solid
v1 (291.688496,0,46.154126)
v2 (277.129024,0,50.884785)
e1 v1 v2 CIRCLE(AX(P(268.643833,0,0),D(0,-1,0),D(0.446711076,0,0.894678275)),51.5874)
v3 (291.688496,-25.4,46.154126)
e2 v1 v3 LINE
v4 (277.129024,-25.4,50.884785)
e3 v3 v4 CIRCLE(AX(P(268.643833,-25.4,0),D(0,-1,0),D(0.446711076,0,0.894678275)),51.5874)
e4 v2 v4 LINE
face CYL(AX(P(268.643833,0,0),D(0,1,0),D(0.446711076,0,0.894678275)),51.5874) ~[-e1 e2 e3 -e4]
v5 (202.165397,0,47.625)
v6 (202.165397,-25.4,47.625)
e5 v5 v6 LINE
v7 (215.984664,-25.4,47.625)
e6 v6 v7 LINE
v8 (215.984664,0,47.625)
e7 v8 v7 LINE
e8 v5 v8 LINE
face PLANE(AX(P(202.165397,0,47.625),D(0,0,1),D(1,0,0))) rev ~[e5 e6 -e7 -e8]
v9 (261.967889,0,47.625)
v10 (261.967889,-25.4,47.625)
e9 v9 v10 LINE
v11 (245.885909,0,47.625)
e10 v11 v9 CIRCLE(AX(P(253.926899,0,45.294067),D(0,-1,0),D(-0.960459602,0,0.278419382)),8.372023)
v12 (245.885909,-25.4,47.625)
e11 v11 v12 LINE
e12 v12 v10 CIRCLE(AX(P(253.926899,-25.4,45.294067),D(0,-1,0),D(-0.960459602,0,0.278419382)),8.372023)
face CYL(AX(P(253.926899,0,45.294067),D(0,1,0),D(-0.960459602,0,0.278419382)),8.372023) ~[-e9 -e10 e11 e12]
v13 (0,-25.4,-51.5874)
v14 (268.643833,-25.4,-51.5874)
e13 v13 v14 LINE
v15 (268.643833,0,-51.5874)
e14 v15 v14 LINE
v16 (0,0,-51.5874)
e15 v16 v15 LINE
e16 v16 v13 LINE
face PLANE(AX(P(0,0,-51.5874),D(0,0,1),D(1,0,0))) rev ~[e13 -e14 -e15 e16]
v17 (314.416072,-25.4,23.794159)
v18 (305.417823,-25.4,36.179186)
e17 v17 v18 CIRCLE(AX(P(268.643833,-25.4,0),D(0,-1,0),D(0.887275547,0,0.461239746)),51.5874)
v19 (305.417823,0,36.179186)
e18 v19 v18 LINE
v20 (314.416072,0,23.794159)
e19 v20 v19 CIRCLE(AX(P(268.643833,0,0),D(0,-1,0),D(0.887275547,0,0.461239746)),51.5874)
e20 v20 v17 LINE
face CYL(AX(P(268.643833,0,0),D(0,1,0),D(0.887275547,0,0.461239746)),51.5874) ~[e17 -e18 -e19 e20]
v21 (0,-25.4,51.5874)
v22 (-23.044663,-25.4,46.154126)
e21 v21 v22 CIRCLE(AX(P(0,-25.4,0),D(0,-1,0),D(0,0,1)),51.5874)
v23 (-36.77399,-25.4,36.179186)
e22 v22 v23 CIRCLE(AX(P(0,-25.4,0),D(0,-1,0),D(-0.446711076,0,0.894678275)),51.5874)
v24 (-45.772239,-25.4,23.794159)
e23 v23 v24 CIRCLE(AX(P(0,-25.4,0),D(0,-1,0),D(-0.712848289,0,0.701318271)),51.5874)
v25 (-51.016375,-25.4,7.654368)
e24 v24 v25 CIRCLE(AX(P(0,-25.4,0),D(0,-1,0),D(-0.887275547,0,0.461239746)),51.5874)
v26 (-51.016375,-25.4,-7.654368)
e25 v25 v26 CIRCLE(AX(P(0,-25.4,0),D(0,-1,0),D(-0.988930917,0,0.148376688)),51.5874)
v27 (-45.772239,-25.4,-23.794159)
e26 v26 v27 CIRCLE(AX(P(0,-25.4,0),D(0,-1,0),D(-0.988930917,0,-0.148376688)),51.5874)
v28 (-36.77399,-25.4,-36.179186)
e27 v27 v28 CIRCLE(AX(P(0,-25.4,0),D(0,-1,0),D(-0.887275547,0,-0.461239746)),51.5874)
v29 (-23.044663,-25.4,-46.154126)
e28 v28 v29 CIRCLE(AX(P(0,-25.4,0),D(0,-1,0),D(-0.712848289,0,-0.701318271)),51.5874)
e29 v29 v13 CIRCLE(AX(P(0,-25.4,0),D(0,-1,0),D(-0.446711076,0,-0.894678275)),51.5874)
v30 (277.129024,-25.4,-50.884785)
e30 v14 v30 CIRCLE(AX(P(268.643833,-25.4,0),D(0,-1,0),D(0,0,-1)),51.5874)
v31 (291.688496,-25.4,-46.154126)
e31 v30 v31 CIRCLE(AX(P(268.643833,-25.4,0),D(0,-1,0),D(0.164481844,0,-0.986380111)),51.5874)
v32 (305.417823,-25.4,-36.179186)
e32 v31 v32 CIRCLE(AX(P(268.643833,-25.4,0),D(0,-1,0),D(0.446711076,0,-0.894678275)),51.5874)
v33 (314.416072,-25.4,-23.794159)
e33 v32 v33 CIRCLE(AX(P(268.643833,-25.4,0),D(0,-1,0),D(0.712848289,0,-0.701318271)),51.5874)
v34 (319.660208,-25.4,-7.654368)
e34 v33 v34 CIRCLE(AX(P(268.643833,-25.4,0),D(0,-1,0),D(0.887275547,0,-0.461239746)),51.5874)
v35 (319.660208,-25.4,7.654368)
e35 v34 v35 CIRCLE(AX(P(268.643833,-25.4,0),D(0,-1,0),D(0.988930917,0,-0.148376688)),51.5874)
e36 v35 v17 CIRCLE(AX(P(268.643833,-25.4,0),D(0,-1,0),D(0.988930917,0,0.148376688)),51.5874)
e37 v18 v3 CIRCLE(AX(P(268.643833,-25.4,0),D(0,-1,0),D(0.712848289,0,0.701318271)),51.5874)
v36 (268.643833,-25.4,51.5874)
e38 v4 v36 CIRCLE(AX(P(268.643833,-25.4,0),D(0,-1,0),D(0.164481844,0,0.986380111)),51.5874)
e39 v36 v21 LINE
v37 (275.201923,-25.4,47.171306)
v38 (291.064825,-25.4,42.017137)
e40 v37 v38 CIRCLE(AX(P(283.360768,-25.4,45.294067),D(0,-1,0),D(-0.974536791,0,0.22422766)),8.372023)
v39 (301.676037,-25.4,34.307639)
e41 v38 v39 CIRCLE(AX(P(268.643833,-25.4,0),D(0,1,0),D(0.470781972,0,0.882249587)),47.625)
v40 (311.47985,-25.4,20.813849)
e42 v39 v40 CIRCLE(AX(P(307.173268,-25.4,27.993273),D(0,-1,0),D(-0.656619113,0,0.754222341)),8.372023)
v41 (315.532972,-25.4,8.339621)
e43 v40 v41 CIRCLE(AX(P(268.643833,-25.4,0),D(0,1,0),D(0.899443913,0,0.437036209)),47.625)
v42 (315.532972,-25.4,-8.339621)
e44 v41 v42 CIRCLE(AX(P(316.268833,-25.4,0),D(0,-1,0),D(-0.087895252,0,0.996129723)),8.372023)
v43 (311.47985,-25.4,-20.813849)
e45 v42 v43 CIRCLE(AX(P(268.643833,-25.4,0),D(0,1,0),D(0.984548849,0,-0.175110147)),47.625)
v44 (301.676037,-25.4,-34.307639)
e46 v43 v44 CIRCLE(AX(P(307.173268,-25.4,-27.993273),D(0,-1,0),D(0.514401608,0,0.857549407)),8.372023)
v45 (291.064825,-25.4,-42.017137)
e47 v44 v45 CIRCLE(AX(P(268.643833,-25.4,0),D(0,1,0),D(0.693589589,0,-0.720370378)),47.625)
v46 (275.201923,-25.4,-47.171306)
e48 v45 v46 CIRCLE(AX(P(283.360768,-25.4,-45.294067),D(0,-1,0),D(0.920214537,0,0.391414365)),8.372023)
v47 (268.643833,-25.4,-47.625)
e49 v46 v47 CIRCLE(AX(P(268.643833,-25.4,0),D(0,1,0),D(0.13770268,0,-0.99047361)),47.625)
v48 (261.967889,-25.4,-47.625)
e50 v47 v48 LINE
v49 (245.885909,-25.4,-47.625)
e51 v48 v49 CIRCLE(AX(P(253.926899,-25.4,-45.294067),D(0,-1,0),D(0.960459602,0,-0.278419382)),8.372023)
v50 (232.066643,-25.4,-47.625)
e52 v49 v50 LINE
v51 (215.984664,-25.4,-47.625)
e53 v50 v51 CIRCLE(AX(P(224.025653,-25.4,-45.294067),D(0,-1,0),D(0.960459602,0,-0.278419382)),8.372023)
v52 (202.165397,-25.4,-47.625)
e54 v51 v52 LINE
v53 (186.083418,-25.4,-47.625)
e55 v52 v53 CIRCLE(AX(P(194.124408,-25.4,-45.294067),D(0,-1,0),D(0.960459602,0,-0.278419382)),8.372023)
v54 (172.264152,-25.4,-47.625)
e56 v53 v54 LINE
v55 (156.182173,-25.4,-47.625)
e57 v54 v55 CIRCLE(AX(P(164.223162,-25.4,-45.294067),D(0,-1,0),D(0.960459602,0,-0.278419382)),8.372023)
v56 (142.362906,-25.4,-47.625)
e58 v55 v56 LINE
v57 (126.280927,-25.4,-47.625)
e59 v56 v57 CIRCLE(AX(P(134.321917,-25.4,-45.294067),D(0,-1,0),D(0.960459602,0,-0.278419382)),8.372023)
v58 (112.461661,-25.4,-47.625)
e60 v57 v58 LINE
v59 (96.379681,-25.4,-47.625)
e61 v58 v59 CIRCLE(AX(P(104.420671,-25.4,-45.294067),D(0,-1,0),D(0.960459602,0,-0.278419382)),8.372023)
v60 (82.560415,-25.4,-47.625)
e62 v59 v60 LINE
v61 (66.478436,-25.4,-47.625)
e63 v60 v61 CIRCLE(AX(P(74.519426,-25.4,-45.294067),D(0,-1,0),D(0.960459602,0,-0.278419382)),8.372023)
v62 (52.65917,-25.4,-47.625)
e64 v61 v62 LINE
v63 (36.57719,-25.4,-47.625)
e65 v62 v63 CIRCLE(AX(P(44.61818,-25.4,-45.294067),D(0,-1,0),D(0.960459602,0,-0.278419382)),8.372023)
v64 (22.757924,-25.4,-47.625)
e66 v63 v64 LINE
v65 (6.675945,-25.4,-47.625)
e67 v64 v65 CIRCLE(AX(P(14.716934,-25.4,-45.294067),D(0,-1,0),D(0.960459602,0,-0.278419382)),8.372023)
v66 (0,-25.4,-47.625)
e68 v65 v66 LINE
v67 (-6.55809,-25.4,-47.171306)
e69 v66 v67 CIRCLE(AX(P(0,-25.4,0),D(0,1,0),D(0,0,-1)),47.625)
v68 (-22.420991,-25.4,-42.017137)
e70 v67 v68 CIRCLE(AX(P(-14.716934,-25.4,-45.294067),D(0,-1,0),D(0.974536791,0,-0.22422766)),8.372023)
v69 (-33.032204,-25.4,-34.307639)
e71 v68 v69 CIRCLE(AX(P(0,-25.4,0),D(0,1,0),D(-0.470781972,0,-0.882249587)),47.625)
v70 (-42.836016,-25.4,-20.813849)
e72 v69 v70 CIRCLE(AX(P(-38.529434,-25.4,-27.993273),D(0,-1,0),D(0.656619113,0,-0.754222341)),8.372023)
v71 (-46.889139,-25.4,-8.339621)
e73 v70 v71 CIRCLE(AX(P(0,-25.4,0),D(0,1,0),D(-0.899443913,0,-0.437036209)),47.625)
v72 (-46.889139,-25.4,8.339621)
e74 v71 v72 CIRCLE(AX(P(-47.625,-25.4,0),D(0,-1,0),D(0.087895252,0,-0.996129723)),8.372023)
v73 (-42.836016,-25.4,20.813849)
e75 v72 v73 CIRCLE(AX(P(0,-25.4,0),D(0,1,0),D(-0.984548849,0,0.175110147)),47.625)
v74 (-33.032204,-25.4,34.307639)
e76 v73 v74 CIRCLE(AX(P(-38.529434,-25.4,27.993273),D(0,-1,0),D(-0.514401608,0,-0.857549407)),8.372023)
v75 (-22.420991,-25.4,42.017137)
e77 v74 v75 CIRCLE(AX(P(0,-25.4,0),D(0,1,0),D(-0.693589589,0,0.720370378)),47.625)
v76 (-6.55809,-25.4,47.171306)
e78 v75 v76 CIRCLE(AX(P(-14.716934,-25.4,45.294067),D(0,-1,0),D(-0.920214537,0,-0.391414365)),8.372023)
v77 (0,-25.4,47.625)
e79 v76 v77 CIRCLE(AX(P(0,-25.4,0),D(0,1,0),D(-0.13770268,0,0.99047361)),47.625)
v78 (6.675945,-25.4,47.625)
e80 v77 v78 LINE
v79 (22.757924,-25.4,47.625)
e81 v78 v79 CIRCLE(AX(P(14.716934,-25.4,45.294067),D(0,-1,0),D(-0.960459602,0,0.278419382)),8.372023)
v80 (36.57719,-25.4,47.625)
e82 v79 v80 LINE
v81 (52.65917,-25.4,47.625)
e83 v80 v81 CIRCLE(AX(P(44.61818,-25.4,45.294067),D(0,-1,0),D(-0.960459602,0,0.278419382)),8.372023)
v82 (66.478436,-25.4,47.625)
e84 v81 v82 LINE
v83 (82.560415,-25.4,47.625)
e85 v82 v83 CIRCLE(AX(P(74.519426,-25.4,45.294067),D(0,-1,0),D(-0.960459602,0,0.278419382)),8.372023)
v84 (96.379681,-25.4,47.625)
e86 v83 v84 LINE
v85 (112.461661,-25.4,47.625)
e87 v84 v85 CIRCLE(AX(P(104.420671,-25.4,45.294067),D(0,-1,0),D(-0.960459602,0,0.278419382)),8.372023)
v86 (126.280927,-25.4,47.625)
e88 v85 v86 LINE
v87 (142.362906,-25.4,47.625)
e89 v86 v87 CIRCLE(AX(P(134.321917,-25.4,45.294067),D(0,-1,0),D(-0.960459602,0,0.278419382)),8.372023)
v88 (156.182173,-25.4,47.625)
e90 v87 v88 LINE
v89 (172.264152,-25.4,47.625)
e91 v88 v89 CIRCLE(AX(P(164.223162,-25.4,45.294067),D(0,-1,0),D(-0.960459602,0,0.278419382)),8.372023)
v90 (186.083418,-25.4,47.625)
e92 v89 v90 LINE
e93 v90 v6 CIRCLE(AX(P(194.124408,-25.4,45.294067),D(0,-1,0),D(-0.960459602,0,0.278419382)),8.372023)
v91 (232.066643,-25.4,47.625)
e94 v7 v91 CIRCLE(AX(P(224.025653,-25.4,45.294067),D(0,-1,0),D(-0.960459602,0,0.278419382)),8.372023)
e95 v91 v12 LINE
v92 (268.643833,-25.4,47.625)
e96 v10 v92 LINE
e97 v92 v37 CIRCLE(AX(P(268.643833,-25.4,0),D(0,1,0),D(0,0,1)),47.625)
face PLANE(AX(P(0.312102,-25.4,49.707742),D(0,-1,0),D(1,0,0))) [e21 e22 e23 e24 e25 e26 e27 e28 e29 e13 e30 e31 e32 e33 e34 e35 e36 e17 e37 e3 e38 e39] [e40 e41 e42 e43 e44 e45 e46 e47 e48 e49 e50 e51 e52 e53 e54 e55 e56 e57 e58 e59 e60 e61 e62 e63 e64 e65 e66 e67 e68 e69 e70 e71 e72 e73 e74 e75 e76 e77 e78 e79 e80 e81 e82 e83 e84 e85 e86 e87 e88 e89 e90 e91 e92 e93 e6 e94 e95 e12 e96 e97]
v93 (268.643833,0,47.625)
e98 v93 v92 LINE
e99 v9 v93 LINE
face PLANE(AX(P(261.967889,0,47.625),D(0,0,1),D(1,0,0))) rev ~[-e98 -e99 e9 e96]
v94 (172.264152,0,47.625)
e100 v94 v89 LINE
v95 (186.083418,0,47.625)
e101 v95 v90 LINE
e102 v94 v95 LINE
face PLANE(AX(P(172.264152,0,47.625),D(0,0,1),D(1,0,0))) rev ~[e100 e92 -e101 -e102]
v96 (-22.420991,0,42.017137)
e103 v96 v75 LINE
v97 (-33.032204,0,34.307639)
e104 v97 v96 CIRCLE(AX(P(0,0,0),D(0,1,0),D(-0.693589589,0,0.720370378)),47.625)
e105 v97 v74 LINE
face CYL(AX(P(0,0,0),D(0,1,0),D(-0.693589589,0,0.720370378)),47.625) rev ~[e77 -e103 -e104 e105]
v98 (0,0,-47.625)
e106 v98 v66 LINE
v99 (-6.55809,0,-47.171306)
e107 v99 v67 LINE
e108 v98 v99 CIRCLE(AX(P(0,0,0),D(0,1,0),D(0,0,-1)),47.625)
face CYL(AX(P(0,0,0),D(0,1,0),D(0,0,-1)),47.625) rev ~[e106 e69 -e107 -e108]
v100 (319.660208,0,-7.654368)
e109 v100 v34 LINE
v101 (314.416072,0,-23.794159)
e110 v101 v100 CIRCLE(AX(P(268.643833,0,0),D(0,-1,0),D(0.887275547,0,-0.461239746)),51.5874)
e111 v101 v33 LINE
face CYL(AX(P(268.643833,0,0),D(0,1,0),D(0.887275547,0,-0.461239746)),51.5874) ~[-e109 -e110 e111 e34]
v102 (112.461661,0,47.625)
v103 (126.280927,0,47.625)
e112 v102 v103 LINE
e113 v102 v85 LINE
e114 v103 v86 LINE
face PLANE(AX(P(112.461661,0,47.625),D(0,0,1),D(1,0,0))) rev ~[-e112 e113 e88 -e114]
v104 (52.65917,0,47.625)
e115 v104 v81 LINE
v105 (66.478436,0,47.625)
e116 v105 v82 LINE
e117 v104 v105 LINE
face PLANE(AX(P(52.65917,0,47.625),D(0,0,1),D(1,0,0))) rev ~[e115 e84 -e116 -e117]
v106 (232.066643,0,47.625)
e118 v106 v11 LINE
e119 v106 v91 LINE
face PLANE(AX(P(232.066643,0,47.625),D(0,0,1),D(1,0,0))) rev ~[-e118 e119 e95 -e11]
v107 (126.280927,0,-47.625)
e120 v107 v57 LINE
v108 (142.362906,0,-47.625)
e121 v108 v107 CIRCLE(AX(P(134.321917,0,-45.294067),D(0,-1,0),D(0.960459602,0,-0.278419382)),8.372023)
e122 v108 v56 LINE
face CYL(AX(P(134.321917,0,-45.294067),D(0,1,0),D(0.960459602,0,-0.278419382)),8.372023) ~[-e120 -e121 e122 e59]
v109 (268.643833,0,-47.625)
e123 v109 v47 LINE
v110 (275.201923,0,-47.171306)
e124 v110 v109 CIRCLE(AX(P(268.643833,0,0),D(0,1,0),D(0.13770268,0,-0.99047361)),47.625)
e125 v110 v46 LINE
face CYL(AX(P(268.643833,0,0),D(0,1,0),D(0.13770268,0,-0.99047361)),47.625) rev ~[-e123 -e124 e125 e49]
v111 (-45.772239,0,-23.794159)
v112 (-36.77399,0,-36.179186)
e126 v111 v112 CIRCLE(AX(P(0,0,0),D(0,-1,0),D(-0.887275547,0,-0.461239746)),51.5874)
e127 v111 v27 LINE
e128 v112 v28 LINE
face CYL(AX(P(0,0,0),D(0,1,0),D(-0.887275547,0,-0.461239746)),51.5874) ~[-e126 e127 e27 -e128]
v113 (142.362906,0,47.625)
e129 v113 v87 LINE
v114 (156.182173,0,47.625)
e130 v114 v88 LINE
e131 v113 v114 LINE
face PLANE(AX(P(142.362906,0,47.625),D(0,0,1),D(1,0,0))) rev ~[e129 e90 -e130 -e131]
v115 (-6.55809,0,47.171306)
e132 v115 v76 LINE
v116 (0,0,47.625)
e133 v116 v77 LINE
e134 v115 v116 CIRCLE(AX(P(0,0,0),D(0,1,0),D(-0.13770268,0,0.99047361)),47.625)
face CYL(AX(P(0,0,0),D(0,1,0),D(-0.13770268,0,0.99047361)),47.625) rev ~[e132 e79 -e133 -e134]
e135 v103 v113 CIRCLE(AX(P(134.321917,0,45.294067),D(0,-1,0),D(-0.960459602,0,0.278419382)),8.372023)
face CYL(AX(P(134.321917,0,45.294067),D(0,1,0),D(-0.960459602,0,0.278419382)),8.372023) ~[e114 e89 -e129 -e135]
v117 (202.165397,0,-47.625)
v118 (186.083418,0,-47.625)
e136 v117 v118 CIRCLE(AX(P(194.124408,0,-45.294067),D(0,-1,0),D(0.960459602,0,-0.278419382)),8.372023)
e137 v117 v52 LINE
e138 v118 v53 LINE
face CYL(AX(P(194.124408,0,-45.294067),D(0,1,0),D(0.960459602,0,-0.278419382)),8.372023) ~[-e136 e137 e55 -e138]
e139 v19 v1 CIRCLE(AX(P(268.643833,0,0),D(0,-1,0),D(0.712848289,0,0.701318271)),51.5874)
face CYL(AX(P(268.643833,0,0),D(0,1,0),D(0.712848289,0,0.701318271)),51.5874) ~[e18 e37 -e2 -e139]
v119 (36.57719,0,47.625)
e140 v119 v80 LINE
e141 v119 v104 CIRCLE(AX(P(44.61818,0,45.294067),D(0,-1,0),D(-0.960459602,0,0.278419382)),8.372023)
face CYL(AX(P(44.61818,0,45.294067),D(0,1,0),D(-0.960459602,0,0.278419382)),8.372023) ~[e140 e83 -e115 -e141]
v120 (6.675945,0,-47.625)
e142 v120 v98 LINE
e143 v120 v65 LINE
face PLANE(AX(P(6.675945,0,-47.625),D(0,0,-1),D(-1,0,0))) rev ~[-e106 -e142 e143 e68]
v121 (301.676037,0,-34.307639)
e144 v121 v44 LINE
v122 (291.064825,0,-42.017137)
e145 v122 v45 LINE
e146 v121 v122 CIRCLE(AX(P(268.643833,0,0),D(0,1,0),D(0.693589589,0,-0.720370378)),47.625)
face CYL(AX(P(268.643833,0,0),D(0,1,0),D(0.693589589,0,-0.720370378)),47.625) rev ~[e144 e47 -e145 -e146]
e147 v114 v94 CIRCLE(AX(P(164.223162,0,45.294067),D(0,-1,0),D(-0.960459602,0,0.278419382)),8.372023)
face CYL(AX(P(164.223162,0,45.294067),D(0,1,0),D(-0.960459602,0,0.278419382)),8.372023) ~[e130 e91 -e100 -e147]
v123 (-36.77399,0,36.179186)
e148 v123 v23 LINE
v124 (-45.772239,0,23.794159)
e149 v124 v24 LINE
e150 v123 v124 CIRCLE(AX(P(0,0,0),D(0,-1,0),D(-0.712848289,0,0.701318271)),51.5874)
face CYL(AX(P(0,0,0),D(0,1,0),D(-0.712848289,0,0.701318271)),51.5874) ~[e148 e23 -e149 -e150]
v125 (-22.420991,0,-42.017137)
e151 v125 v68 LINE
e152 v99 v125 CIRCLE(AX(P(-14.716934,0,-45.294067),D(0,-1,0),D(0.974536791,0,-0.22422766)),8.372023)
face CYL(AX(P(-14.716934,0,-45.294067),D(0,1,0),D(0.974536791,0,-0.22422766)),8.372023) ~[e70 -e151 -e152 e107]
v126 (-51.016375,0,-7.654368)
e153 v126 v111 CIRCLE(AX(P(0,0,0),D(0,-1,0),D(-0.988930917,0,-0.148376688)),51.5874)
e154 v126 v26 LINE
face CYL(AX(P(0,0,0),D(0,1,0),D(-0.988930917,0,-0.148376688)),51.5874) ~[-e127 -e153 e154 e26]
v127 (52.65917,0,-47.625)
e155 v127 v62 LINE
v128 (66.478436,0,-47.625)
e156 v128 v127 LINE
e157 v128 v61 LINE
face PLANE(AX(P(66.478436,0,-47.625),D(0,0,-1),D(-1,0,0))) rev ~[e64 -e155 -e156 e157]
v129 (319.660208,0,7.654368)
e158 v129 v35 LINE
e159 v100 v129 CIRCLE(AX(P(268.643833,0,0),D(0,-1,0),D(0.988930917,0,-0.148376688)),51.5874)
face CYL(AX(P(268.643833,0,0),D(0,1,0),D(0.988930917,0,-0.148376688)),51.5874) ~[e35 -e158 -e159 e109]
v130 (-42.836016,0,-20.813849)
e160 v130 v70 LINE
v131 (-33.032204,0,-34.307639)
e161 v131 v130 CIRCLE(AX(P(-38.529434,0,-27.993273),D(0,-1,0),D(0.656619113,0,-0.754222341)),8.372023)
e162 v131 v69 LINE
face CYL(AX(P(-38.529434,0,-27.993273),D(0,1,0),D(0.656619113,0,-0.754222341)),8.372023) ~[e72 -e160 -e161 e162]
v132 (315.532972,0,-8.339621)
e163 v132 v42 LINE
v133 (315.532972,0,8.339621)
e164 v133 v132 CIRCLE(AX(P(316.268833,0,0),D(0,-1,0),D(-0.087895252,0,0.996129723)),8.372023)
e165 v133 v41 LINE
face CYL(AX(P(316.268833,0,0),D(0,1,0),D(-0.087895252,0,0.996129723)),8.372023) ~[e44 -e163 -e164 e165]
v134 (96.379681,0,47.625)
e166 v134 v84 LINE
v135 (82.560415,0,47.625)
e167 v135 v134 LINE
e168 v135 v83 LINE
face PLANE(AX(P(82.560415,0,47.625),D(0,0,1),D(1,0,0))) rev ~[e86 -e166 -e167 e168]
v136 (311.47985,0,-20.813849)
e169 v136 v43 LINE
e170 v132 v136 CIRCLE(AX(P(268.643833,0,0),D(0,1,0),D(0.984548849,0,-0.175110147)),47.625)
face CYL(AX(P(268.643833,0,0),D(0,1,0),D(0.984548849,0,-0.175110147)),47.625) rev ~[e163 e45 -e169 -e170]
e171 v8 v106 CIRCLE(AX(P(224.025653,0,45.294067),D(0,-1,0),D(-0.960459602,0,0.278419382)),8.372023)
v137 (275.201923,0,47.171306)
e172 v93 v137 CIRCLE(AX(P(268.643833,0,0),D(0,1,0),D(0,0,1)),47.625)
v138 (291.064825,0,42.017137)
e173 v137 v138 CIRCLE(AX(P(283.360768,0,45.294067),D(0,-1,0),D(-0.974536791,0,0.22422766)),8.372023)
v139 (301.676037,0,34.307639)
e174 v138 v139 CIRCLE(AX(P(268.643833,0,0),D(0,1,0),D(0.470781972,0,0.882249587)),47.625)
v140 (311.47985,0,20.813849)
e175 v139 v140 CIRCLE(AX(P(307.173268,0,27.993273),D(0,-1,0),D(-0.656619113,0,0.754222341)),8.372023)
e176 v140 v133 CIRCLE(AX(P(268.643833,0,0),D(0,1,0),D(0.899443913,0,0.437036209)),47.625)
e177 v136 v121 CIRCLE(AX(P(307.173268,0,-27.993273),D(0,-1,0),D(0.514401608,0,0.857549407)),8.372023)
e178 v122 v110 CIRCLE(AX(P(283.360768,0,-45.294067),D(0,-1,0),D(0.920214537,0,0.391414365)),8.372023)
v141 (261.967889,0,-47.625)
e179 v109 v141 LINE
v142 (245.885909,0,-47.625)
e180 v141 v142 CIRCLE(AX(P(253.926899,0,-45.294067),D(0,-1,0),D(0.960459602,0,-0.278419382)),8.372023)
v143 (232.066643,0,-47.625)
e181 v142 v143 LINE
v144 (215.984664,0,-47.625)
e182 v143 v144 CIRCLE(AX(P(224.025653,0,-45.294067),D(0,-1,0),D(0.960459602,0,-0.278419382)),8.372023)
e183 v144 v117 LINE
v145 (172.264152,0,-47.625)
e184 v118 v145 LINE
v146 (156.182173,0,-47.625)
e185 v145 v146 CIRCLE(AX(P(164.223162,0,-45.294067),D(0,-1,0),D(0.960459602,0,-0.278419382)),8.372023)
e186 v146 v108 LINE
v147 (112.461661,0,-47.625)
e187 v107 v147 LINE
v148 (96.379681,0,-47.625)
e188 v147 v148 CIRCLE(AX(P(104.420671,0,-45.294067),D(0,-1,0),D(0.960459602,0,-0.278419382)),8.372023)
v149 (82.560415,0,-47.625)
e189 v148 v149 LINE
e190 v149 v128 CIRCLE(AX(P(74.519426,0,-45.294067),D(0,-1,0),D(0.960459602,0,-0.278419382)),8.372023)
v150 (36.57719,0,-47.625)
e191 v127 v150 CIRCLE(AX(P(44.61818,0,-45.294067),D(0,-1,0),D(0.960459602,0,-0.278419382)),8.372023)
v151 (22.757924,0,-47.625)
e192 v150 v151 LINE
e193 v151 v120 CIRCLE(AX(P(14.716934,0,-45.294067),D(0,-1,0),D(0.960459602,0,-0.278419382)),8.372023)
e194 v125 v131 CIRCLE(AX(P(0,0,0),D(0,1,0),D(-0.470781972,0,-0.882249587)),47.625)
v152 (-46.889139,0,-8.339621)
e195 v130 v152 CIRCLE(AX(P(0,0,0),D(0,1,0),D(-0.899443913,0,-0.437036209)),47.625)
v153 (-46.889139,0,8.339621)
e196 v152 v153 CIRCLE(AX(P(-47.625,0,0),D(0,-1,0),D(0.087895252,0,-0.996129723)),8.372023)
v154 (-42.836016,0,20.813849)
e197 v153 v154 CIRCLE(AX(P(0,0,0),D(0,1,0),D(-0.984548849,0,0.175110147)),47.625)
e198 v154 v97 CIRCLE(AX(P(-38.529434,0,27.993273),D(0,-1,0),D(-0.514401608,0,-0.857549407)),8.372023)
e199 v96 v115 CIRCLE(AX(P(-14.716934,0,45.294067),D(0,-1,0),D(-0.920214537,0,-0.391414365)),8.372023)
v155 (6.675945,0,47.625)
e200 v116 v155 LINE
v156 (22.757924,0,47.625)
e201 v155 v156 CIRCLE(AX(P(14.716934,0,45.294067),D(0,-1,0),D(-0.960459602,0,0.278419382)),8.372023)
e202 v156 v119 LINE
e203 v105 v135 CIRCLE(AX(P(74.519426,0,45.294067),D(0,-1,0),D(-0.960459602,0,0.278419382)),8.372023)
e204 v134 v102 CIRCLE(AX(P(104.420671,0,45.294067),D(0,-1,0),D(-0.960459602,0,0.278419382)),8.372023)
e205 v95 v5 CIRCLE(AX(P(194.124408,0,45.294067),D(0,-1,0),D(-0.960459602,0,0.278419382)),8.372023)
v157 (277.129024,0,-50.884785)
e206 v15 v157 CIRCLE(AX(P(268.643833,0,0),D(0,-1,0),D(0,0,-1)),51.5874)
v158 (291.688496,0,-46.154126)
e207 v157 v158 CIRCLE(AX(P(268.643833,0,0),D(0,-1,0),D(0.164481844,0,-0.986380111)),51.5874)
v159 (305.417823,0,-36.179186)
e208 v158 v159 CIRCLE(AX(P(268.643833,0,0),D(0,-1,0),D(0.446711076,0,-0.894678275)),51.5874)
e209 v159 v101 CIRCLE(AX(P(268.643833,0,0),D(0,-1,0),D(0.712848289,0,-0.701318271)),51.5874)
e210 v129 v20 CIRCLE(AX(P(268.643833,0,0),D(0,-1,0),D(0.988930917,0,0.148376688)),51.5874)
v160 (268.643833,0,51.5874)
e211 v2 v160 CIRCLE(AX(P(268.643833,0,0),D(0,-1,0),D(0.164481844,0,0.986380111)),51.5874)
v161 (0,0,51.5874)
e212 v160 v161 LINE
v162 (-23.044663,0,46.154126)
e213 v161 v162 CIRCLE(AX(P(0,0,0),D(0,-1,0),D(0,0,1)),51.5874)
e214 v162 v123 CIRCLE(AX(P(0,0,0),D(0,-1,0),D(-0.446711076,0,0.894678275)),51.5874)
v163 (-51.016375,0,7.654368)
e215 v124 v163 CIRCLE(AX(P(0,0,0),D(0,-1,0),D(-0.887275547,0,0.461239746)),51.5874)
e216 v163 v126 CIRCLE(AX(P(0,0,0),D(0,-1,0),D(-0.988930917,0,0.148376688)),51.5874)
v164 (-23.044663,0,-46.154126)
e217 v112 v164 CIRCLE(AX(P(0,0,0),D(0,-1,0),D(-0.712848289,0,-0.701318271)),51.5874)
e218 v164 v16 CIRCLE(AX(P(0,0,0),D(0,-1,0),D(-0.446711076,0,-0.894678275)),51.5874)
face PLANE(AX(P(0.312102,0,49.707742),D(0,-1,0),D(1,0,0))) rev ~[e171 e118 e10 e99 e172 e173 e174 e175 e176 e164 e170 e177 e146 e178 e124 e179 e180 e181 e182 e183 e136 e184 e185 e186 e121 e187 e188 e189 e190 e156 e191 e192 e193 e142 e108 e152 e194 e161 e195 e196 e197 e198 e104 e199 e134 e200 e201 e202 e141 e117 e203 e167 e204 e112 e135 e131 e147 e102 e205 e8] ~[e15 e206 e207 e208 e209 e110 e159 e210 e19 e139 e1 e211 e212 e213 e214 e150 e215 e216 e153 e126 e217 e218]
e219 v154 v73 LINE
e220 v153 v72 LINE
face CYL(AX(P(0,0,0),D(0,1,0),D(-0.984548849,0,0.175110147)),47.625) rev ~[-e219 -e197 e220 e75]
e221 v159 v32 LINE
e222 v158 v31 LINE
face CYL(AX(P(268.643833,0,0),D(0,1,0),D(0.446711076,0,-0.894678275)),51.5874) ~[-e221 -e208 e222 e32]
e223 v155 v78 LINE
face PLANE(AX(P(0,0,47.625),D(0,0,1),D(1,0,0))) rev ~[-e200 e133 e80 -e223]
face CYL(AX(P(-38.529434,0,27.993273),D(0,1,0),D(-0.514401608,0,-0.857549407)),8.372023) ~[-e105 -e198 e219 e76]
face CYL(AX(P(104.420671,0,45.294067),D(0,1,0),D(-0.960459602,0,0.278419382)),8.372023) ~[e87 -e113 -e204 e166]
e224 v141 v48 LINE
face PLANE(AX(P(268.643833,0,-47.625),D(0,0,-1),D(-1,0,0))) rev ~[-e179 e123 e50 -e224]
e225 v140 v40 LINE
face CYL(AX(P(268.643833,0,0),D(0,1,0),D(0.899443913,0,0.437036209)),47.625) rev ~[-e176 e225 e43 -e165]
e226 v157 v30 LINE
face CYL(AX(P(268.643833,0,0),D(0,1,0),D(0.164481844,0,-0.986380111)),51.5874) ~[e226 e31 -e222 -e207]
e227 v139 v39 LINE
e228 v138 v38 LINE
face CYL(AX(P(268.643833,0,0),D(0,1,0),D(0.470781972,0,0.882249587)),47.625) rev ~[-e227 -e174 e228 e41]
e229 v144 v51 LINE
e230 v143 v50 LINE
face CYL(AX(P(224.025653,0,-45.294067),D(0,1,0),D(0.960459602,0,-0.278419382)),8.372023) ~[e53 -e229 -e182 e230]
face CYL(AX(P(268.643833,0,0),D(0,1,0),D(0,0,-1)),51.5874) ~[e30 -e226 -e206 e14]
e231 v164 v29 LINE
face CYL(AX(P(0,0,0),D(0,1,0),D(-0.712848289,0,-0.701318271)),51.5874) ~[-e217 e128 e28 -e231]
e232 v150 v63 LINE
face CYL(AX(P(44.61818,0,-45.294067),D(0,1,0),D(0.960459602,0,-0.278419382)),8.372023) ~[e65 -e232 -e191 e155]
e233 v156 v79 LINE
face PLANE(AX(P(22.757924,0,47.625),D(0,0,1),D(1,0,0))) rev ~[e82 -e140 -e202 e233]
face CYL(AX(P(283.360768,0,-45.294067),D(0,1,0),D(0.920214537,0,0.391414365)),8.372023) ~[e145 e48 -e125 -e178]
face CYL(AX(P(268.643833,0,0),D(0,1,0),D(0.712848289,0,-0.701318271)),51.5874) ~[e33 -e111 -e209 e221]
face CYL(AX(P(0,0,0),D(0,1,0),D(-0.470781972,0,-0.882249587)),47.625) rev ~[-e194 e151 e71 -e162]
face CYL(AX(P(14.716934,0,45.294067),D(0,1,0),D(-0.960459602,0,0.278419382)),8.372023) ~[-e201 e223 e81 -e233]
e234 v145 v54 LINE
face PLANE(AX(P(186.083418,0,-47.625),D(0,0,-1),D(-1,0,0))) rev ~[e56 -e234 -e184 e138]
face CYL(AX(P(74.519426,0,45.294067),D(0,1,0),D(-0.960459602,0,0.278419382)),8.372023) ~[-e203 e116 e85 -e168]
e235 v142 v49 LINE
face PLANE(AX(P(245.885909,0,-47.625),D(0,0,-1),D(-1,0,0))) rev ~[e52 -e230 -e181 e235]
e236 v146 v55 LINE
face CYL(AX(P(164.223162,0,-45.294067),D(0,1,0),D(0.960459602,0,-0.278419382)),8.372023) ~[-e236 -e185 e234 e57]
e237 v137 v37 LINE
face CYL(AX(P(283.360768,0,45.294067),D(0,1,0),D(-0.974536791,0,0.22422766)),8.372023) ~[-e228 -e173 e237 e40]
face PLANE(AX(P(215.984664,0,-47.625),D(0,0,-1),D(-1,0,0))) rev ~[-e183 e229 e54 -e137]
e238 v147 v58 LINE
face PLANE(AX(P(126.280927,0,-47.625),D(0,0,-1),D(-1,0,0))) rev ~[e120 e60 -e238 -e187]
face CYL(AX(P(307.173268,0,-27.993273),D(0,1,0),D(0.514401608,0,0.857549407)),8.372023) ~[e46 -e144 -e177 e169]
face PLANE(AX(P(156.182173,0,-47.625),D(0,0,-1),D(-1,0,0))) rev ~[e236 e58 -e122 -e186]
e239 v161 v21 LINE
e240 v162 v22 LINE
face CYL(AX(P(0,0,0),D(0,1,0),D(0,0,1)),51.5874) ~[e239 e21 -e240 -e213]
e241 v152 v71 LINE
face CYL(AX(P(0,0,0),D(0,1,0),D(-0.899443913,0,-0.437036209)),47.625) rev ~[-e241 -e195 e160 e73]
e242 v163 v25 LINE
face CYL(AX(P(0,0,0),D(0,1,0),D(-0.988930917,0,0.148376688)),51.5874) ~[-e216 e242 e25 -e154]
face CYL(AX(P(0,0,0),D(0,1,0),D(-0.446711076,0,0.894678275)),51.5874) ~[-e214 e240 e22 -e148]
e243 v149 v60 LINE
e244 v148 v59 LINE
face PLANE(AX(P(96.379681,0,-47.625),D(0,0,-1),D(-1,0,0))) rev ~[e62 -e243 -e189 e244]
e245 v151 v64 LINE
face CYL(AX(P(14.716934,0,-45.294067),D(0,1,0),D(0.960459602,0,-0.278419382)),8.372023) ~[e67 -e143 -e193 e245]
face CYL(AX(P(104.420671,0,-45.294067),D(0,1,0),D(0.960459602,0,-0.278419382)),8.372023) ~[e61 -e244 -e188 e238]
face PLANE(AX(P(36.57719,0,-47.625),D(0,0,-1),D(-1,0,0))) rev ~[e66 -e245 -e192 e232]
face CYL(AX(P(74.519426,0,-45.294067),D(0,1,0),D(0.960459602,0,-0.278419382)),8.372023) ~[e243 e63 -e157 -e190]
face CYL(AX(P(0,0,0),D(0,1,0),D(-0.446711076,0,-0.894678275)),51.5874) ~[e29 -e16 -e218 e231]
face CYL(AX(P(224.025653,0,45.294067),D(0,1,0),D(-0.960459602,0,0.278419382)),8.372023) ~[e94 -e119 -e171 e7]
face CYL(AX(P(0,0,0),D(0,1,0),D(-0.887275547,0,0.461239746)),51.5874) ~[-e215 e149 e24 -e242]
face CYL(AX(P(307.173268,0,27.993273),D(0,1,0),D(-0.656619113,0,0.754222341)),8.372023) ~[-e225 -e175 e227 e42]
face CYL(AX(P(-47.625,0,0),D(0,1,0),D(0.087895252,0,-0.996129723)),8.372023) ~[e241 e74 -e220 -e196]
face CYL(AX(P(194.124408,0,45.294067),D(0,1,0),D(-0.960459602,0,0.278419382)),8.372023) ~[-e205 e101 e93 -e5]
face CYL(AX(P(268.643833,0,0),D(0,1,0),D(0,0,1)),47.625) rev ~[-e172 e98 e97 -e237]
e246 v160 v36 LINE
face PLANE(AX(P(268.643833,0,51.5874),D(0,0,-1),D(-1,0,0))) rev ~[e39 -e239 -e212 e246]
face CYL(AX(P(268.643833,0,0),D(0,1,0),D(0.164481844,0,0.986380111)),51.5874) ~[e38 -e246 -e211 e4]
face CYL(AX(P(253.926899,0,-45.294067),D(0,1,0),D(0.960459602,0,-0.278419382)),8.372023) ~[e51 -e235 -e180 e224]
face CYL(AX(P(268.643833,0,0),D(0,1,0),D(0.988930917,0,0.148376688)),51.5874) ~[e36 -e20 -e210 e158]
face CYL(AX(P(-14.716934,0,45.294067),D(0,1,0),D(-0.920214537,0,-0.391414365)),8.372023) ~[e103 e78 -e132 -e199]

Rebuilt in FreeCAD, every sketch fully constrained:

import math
import FreeCAD as App
import Part
import Sketcher

V = App.Vector
Q = App.Units.Quantity

doc = App.newDocument("Part")
params = doc.addObject("Spreadsheet::Sheet", "Params")
for row, (alias, value) in enumerate([
    ("sketch1_radius", "2.031 in"),
    ("sketch1_radius2", "1.875 in"),
    ("pad1_length", "1 in"),
], start=1):
    params.set(f"A{row}", alias)
    params.set(f"B{row}", "=" + value)
    params.setAlias(f"B{row}", alias)

body = doc.addObject("PartDesign::Body", "Body")

# Sketch on XZ plane
sketch1 = body.newObject("Sketcher::SketchObject", "Sketch")
sketch1.AttachmentSupport = (doc.getObject("XZ_Plane"), [""])
sketch1.MapMode = "FlatFace"
sketch1.addGeometry([
    Part.ArcOfCircle(Part.Circle(V(269, 0, 0), V(0, 0, 1), 52), math.radians(-80.53), math.radians(-63.47)),  # 0
    Part.ArcOfCircle(Part.Circle(V(269, 0, 0), V(0, 0, 1), 52), math.radians(-63.47), math.radians(-44.53)),  # 1
    Part.ArcOfCircle(Part.Circle(V(269, 0, 0), V(0, 0, 1), 52), math.radians(-44.53), math.radians(-27.47)),  # 2
    Part.ArcOfCircle(Part.Circle(V(269, 0, 0), V(0, 0, 1), 52), math.radians(-27.47), math.radians(-8.53)),  # 3
    Part.ArcOfCircle(Part.Circle(V(269, 0, 0), V(0, 0, 1), 52), math.radians(-8.53), math.radians(8.53)),  # 4
    Part.ArcOfCircle(Part.Circle(V(269, 0, 0), V(0, 0, 1), 52), math.radians(8.53), math.radians(27.47)),  # 5
    Part.ArcOfCircle(Part.Circle(V(269, 0, 0), V(0, 0, 1), 52), math.radians(27.47), math.radians(44.53)),  # 6
    Part.ArcOfCircle(Part.Circle(V(269, 0, 0), V(0, 0, 1), 52), math.radians(44.53), math.radians(63.47)),  # 7
    Part.ArcOfCircle(Part.Circle(V(269, 0, 0), V(0, 0, 1), 52), math.radians(63.47), math.radians(80.53)),  # 8
    Part.ArcOfCircle(Part.Circle(V(269, 0, 0), V(0, 0, 1), 52), math.radians(80.53), math.radians(90)),  # 9
    Part.LineSegment(V(269, 52, 0), V(0, 52, 0)),  # 10
    Part.ArcOfCircle(Part.Circle(V(0, 0, 0), V(0, 0, 1), 52), math.radians(90), math.radians(117)),  # 11
    Part.ArcOfCircle(Part.Circle(V(0, 0, 0), V(0, 0, 1), 52), math.radians(116.53), math.radians(135.47)),  # 12
    Part.ArcOfCircle(Part.Circle(V(0, 0, 0), V(0, 0, 1), 52), math.radians(135.47), math.radians(152.53)),  # 13
    Part.ArcOfCircle(Part.Circle(V(0, 0, 0), V(0, 0, 1), 52), math.radians(152.53), math.radians(171.47)),  # 14
    Part.ArcOfCircle(Part.Circle(V(0, 0, 0), V(0, 0, 1), 52), math.radians(171.47), math.radians(188.53)),  # 15
    Part.ArcOfCircle(Part.Circle(V(0, 0, 0), V(0, 0, 1), 52), math.radians(-171.47), math.radians(-152.53)),  # 16
    Part.ArcOfCircle(Part.Circle(V(0, 0, 0), V(0, 0, 1), 52), math.radians(-152.53), math.radians(-135.47)),  # 17
    Part.ArcOfCircle(Part.Circle(V(0, 0, 0), V(0, 0, 1), 52), math.radians(-135.47), math.radians(-116.53)),  # 18
    Part.ArcOfCircle(Part.Circle(V(0, 0, 0), V(0, 0, 1), 52), math.radians(-117), math.radians(-90)),  # 19
    Part.LineSegment(V(0, -52, 0), V(269, -52, 0)),  # 20
    Part.ArcOfCircle(Part.Circle(V(269, 0, 0), V(0, 0, 1), 52), math.radians(-90), math.radians(-80.53)),  # 21
    Part.ArcOfCircle(Part.Circle(V(0, 0, 0), V(0, 0, 1), 48), math.radians(90), math.radians(97.91)),  # 22
    Part.LineSegment(V(0, 48, 0), V(7, 48, 0)),  # 23
    Part.ArcOfCircle(Part.Circle(V(15, 45, 0), V(0, 0, 1), 8), math.radians(164), math.radians(376)),  # 24
    Part.LineSegment(V(23, 48, 0), V(37, 48, 0)),  # 25
    Part.ArcOfCircle(Part.Circle(V(45, 45, 0), V(0, 0, 1), 8), math.radians(164), math.radians(376)),  # 26
    Part.LineSegment(V(53, 48, 0), V(66, 48, 0)),  # 27
    Part.ArcOfCircle(Part.Circle(V(75, 45, 0), V(0, 0, 1), 8), math.radians(164), math.radians(376)),  # 28
    Part.LineSegment(V(83, 48, 0), V(96, 48, 0)),  # 29
    Part.ArcOfCircle(Part.Circle(V(104, 45, 0), V(0, 0, 1), 8), math.radians(164), math.radians(376)),  # 30
    Part.LineSegment(V(112, 48, 0), V(126, 48, 0)),  # 31
    Part.ArcOfCircle(Part.Circle(V(134, 45, 0), V(0, 0, 1), 8), math.radians(164), math.radians(376)),  # 32
    Part.LineSegment(V(142, 48, 0), V(156, 48, 0)),  # 33
    Part.ArcOfCircle(Part.Circle(V(164, 45, 0), V(0, 0, 1), 8), math.radians(164), math.radians(376)),  # 34
    Part.LineSegment(V(172, 48, 0), V(186, 48, 0)),  # 35
    Part.ArcOfCircle(Part.Circle(V(194, 45, 0), V(0, 0, 1), 8), math.radians(164), math.radians(376)),  # 36
    Part.LineSegment(V(202, 48, 0), V(216, 48, 0)),  # 37
    Part.ArcOfCircle(Part.Circle(V(224, 45, 0), V(0, 0, 1), 8), math.radians(164), math.radians(376)),  # 38
    Part.LineSegment(V(232, 48, 0), V(246, 48, 0)),  # 39
    Part.ArcOfCircle(Part.Circle(V(254, 45, 0), V(0, 0, 1), 8), math.radians(164), math.radians(376)),  # 40
    Part.LineSegment(V(262, 48, 0), V(269, 48, 0)),  # 41
    Part.ArcOfCircle(Part.Circle(V(269, 0, 0), V(0, 0, 1), 48), math.radians(82.09), math.radians(90)),  # 42
    Part.ArcOfCircle(Part.Circle(V(283, 45, 0), V(0, 0, 1), 8), math.radians(167), math.radians(337)),  # 43
    Part.ArcOfCircle(Part.Circle(V(269, 0, 0), V(0, 0, 1), 48), math.radians(46.09), math.radians(61.91)),  # 44
    Part.ArcOfCircle(Part.Circle(V(307, 28, 0), V(0, 0, 1), 8), math.radians(131), math.radians(301)),  # 45
    Part.ArcOfCircle(Part.Circle(V(269, 0, 0), V(0, 0, 1), 48), math.radians(10.09), math.radians(25.91)),  # 46
    Part.ArcOfCircle(Part.Circle(V(316, 0, 0), V(0, 0, 1), 8), math.radians(95), math.radians(265)),  # 47
    Part.ArcOfCircle(Part.Circle(V(269, 0, 0), V(0, 0, 1), 48), math.radians(-25.91), math.radians(-10.09)),  # 48
    Part.ArcOfCircle(Part.Circle(V(307, -28, 0), V(0, 0, 1), 8), math.radians(59), math.radians(229)),  # 49
    Part.ArcOfCircle(Part.Circle(V(269, 0, 0), V(0, 0, 1), 48), math.radians(-61.91), math.radians(-46.09)),  # 50
    Part.ArcOfCircle(Part.Circle(V(283, -45, 0), V(0, 0, 1), 8), math.radians(23), math.radians(193)),  # 51
    Part.ArcOfCircle(Part.Circle(V(269, 0, 0), V(0, 0, 1), 48), math.radians(-90), math.radians(-82.09)),  # 52
    Part.LineSegment(V(269, -48, 0), V(262, -48, 0)),  # 53
    Part.ArcOfCircle(Part.Circle(V(254, -45, 0), V(0, 0, 1), 8), math.radians(-16), math.radians(196)),  # 54
    Part.LineSegment(V(246, -48, 0), V(232, -48, 0)),  # 55
    Part.ArcOfCircle(Part.Circle(V(224, -45, 0), V(0, 0, 1), 8), math.radians(-16), math.radians(196)),  # 56
    Part.LineSegment(V(216, -48, 0), V(202, -48, 0)),  # 57
    Part.ArcOfCircle(Part.Circle(V(194, -45, 0), V(0, 0, 1), 8), math.radians(-16), math.radians(196)),  # 58
    Part.LineSegment(V(186, -48, 0), V(172, -48, 0)),  # 59
    Part.ArcOfCircle(Part.Circle(V(164, -45, 0), V(0, 0, 1), 8), math.radians(-16), math.radians(196)),  # 60
    Part.LineSegment(V(156, -48, 0), V(142, -48, 0)),  # 61
    Part.ArcOfCircle(Part.Circle(V(134, -45, 0), V(0, 0, 1), 8), math.radians(-16), math.radians(196)),  # 62
    Part.LineSegment(V(126, -48, 0), V(112, -48, 0)),  # 63
    Part.ArcOfCircle(Part.Circle(V(104, -45, 0), V(0, 0, 1), 8), math.radians(-16), math.radians(196)),  # 64
    Part.LineSegment(V(96, -48, 0), V(83, -48, 0)),  # 65
    Part.ArcOfCircle(Part.Circle(V(75, -45, 0), V(0, 0, 1), 8), math.radians(-16), math.radians(196)),  # 66
    Part.LineSegment(V(66, -48, 0), V(53, -48, 0)),  # 67
    Part.ArcOfCircle(Part.Circle(V(45, -45, 0), V(0, 0, 1), 8), math.radians(-16), math.radians(196)),  # 68
    Part.LineSegment(V(37, -48, 0), V(23, -48, 0)),  # 69
    Part.ArcOfCircle(Part.Circle(V(15, -45, 0), V(0, 0, 1), 8), math.radians(-16), math.radians(196)),  # 70
    Part.LineSegment(V(7, -48, 0), V(0, -48, 0)),  # 71
    Part.ArcOfCircle(Part.Circle(V(0, 0, 0), V(0, 0, 1), 48), math.radians(-97.91), math.radians(-90)),  # 72
    Part.ArcOfCircle(Part.Circle(V(-15, -45, 0), V(0, 0, 1), 8), math.radians(-13), math.radians(157)),  # 73
    Part.ArcOfCircle(Part.Circle(V(0, 0, 0), V(0, 0, 1), 48), math.radians(-133.91), math.radians(-118.09)),  # 74
    Part.ArcOfCircle(Part.Circle(V(-39, -28, 0), V(0, 0, 1), 8), math.radians(-49), math.radians(121)),  # 75
    Part.ArcOfCircle(Part.Circle(V(0, 0, 0), V(0, 0, 1), 48), math.radians(-169.91), math.radians(-154.09)),  # 76
    Part.ArcOfCircle(Part.Circle(V(-48, 0, 0), V(0, 0, 1), 8), math.radians(-85), math.radians(85)),  # 77
    Part.ArcOfCircle(Part.Circle(V(0, 0, 0), V(0, 0, 1), 48), math.radians(154.09), math.radians(169.91)),  # 78
    Part.ArcOfCircle(Part.Circle(V(-39, 28, 0), V(0, 0, 1), 8), math.radians(-121), math.radians(49)),  # 79
    Part.ArcOfCircle(Part.Circle(V(0, 0, 0), V(0, 0, 1), 48), math.radians(118.09), math.radians(133.91)),  # 80
    Part.ArcOfCircle(Part.Circle(V(-15, 45, 0), V(0, 0, 1), 8), math.radians(-157), math.radians(13)),  # 81
], False)
sketch1.addConstraint([
    Sketcher.Constraint("Tangent", 0, 2, 1, 1),
    Sketcher.Constraint("Tangent", 1, 2, 2, 1),
    Sketcher.Constraint("Tangent", 2, 2, 3, 1),
    Sketcher.Constraint("Tangent", 3, 2, 4, 1),
    Sketcher.Constraint("Tangent", 4, 2, 5, 1),
    Sketcher.Constraint("Tangent", 5, 2, 6, 1),
    Sketcher.Constraint("Tangent", 6, 2, 7, 1),
    Sketcher.Constraint("Tangent", 7, 2, 8, 1),
    Sketcher.Constraint("Tangent", 8, 2, 9, 1),
    Sketcher.Constraint("Tangent", 9, 2, 10, 1),
    Sketcher.Constraint("Tangent", 10, 2, 11, 1),
    Sketcher.Constraint("Tangent", 11, 2, 12, 1),
    Sketcher.Constraint("Tangent", 12, 2, 13, 1),
    Sketcher.Constraint("Tangent", 13, 2, 14, 1),
    Sketcher.Constraint("Tangent", 14, 2, 15, 1),
    Sketcher.Constraint("Tangent", 15, 2, 16, 1),
    Sketcher.Constraint("Tangent", 16, 2, 17, 1),
    Sketcher.Constraint("Tangent", 17, 2, 18, 1),
    Sketcher.Constraint("Tangent", 18, 2, 19, 1),
    Sketcher.Constraint("Tangent", 19, 2, 20, 1),
    Sketcher.Constraint("Tangent", 20, 2, 21, 1),
    Sketcher.Constraint("Tangent", 21, 2, 0, 1),
    Sketcher.Constraint("Tangent", 22, 1, 23, 1),
    Sketcher.Constraint("Coincident", 23, 2, 24, 1),
    Sketcher.Constraint("Coincident", 24, 2, 25, 1),
    Sketcher.Constraint("Coincident", 25, 2, 26, 1),
    Sketcher.Constraint("Coincident", 26, 2, 27, 1),
    Sketcher.Constraint("Coincident", 27, 2, 28, 1),
    Sketcher.Constraint("Coincident", 28, 2, 29, 1),
    Sketcher.Constraint("Coincident", 29, 2, 30, 1),
    Sketcher.Constraint("Coincident", 30, 2, 31, 1),
    Sketcher.Constraint("Coincident", 31, 2, 32, 1),
    Sketcher.Constraint("Coincident", 32, 2, 33, 1),
    Sketcher.Constraint("Coincident", 33, 2, 34, 1),
    Sketcher.Constraint("Coincident", 34, 2, 35, 1),
    Sketcher.Constraint("Coincident", 35, 2, 36, 1),
    Sketcher.Constraint("Coincident", 36, 2, 37, 1),
    Sketcher.Constraint("Coincident", 37, 2, 38, 1),
    Sketcher.Constraint("Coincident", 38, 2, 39, 1),
    Sketcher.Constraint("Coincident", 39, 2, 40, 1),
    Sketcher.Constraint("Coincident", 40, 2, 41, 1),
    Sketcher.Constraint("Tangent", 41, 2, 42, 2),
    Sketcher.Constraint("Coincident", 42, 1, 43, 1),
    Sketcher.Constraint("Coincident", 43, 2, 44, 2),
    Sketcher.Constraint("Coincident", 44, 1, 45, 1),
    Sketcher.Constraint("Coincident", 45, 2, 46, 2),
    Sketcher.Constraint("Coincident", 46, 1, 47, 1),
    Sketcher.Constraint("Coincident", 47, 2, 48, 2),
    Sketcher.Constraint("Coincident", 48, 1, 49, 1),
    Sketcher.Constraint("Coincident", 49, 2, 50, 2),
    Sketcher.Constraint("Coincident", 50, 1, 51, 1),
    Sketcher.Constraint("Coincident", 51, 2, 52, 2),
    Sketcher.Constraint("Tangent", 52, 1, 53, 1),
    Sketcher.Constraint("Coincident", 53, 2, 54, 1),
    Sketcher.Constraint("Coincident", 54, 2, 55, 1),
    Sketcher.Constraint("Coincident", 55, 2, 56, 1),
    Sketcher.Constraint("Coincident", 56, 2, 57, 1),
    Sketcher.Constraint("Coincident", 57, 2, 58, 1),
    Sketcher.Constraint("Coincident", 58, 2, 59, 1),
    Sketcher.Constraint("Coincident", 59, 2, 60, 1),
    Sketcher.Constraint("Coincident", 60, 2, 61, 1),
    Sketcher.Constraint("Coincident", 61, 2, 62, 1),
    Sketcher.Constraint("Coincident", 62, 2, 63, 1),
    Sketcher.Constraint("Coincident", 63, 2, 64, 1),
    Sketcher.Constraint("Coincident", 64, 2, 65, 1),
    Sketcher.Constraint("Coincident", 65, 2, 66, 1),
    Sketcher.Constraint("Coincident", 66, 2, 67, 1),
    Sketcher.Constraint("Coincident", 67, 2, 68, 1),
    Sketcher.Constraint("Coincident", 68, 2, 69, 1),
    Sketcher.Constraint("Coincident", 69, 2, 70, 1),
    Sketcher.Constraint("Coincident", 70, 2, 71, 1),
    Sketcher.Constraint("Tangent", 71, 2, 72, 2),
    Sketcher.Constraint("Coincident", 72, 1, 73, 1),
    Sketcher.Constraint("Coincident", 73, 2, 74, 2),
    Sketcher.Constraint("Coincident", 74, 1, 75, 1),
    Sketcher.Constraint("Coincident", 75, 2, 76, 2),
    Sketcher.Constraint("Coincident", 76, 1, 77, 1),
    Sketcher.Constraint("Coincident", 77, 2, 78, 2),
    Sketcher.Constraint("Coincident", 78, 1, 79, 1),
    Sketcher.Constraint("Coincident", 79, 2, 80, 2),
    Sketcher.Constraint("Coincident", 80, 1, 81, 1),
    Sketcher.Constraint("Coincident", 81, 2, 22, 2),
    Sketcher.Constraint("Horizontal", 10),
    Sketcher.Constraint("Horizontal", 20),
    Sketcher.Constraint("Horizontal", 23),
    Sketcher.Constraint("Horizontal", 25),
    Sketcher.Constraint("Horizontal", 27),
    Sketcher.Constraint("Horizontal", 29),
    Sketcher.Constraint("Horizontal", 31),
    Sketcher.Constraint("Horizontal", 33),
    Sketcher.Constraint("Horizontal", 35),
    Sketcher.Constraint("Horizontal", 37),
    Sketcher.Constraint("Horizontal", 39),
    Sketcher.Constraint("Horizontal", 41),
    Sketcher.Constraint("Horizontal", 53),
    Sketcher.Constraint("Horizontal", 55),
    Sketcher.Constraint("Horizontal", 57),
    Sketcher.Constraint("Horizontal", 59),
    Sketcher.Constraint("Horizontal", 61),
    Sketcher.Constraint("Horizontal", 63),
    Sketcher.Constraint("Horizontal", 65),
    Sketcher.Constraint("Horizontal", 67),
    Sketcher.Constraint("Horizontal", 69),
    Sketcher.Constraint("Horizontal", 71),
    Sketcher.Constraint("Coincident", 11, 3, -1, 1),
    Sketcher.Constraint("Coincident", 13, 3, -1, 1),
    Sketcher.Constraint("Coincident", 15, 3, -1, 1),
    Sketcher.Constraint("Coincident", 17, 3, -1, 1),
    Sketcher.Constraint("Coincident", 19, 3, -1, 1),
    Sketcher.Constraint("Coincident", 22, 3, -1, 1),
    Sketcher.Constraint("Coincident", 72, 3, -1, 1),
    Sketcher.Constraint("Coincident", 74, 3, -1, 1),
    Sketcher.Constraint("Coincident", 76, 3, -1, 1),
    Sketcher.Constraint("Coincident", 78, 3, -1, 1),
    Sketcher.Constraint("Coincident", 80, 3, -1, 1),
    Sketcher.Constraint("Coincident", 2, 3, 0, 3),
    Sketcher.Constraint("Coincident", 4, 3, 0, 3),
    Sketcher.Constraint("Coincident", 6, 3, 0, 3),
    Sketcher.Constraint("Coincident", 8, 3, 0, 3),
    Sketcher.Constraint("Coincident", 42, 3, 0, 3),
    Sketcher.Constraint("Coincident", 44, 3, 0, 3),
    Sketcher.Constraint("Coincident", 46, 3, 0, 3),
    Sketcher.Constraint("Coincident", 48, 3, 0, 3),
    Sketcher.Constraint("Coincident", 50, 3, 0, 3),
    Sketcher.Constraint("Coincident", 52, 3, 0, 3),
    Sketcher.Constraint("Equal", 8, 9),
    Sketcher.Constraint("Equal", 9, 11),
    Sketcher.Constraint("Equal", 24, 26),
    Sketcher.Constraint("Equal", 26, 28),
    Sketcher.Constraint("Equal", 28, 30),
    Sketcher.Constraint("Equal", 30, 32),
    Sketcher.Constraint("Equal", 32, 34),
    Sketcher.Constraint("Equal", 34, 36),
    Sketcher.Constraint("Equal", 36, 38),
    Sketcher.Constraint("Equal", 38, 40),
    Sketcher.Constraint("Equal", 22, 42),
    Sketcher.Constraint("Equal", 40, 43),
    Sketcher.Constraint("Equal", 42, 44),
    Sketcher.Constraint("Equal", 43, 45),
    Sketcher.Constraint("Equal", 44, 46),
    Sketcher.Constraint("Equal", 45, 47),
    Sketcher.Constraint("Equal", 46, 48),
    Sketcher.Constraint("Equal", 47, 49),
    Sketcher.Constraint("Equal", 48, 50),
    Sketcher.Constraint("Equal", 49, 51),
    Sketcher.Constraint("Equal", 50, 52),
    Sketcher.Constraint("Equal", 51, 54),
    Sketcher.Constraint("Equal", 54, 56),
    Sketcher.Constraint("Equal", 56, 58),
    Sketcher.Constraint("Equal", 58, 60),
    Sketcher.Constraint("Equal", 60, 62),
    Sketcher.Constraint("Equal", 62, 64),
    Sketcher.Constraint("Equal", 64, 66),
    Sketcher.Constraint("Equal", 66, 68),
    Sketcher.Constraint("Equal", 68, 70),
    Sketcher.Constraint("Equal", 52, 72),
    Sketcher.Constraint("Equal", 70, 73),
    Sketcher.Constraint("Equal", 72, 74),
    Sketcher.Constraint("Equal", 73, 75),
    Sketcher.Constraint("Equal", 74, 76),
    Sketcher.Constraint("Equal", 75, 77),
    Sketcher.Constraint("Equal", 76, 78),
    Sketcher.Constraint("Equal", 77, 79),
    Sketcher.Constraint("Equal", 78, 80),
    Sketcher.Constraint("Equal", 79, 81),
    Sketcher.Constraint("Symmetric", 24, 3, 73, 3, -1, 1),
    Sketcher.Constraint("Symmetric", 70, 3, 81, 3, -1, 1),
    Sketcher.Constraint("Symmetric", 70, 3, 73, 3, -2),
    Sketcher.Constraint("Symmetric", 45, 3, 49, 3, -1),
    Sketcher.Constraint("Symmetric", 43, 3, 51, 3, -1),
    Sketcher.Constraint("Symmetric", 40, 3, 54, 3, -1),
    Sketcher.Constraint("Symmetric", 38, 3, 56, 3, -1),
    Sketcher.Constraint("Symmetric", 36, 3, 58, 3, -1),
    Sketcher.Constraint("Symmetric", 34, 3, 60, 3, -1),
    Sketcher.Constraint("Symmetric", 32, 3, 62, 3, -1),
    Sketcher.Constraint("Symmetric", 30, 3, 64, 3, -1),
    Sketcher.Constraint("Symmetric", 28, 3, 66, 3, -1),
    Sketcher.Constraint("Symmetric", 26, 3, 68, 3, -1),
    Sketcher.Constraint("Symmetric", 75, 3, 79, 3, -1),
    Sketcher.Constraint("PointOnObject", 47, 3, -1),
    Sketcher.Constraint("PointOnObject", 77, 3, -1),
    Sketcher.Constraint("Horizontal", 24, 3, 26, 3),
    Sketcher.Constraint("Horizontal", 26, 3, 28, 3),
    Sketcher.Constraint("Horizontal", 28, 3, 30, 3),
    Sketcher.Constraint("Horizontal", 30, 3, 32, 3),
    Sketcher.Constraint("Horizontal", 32, 3, 34, 3),
    Sketcher.Constraint("Horizontal", 34, 3, 36, 3),
    Sketcher.Constraint("Horizontal", 36, 3, 38, 3),
    Sketcher.Constraint("Horizontal", 38, 3, 40, 3),
    Sketcher.Constraint("Horizontal", 40, 3, 43, 3),
    Sketcher.Constraint("Horizontal", 49, 3, 75, 3),
    Sketcher.Constraint("Horizontal", 7, 2, 11, 2),
    Sketcher.Constraint("Horizontal", 6, 2, 12, 2),
    Sketcher.Constraint("Horizontal", 5, 2, 13, 2),
    Sketcher.Constraint("Horizontal", 4, 2, 14, 2),
    Sketcher.Constraint("Horizontal", 3, 2, 15, 2),
    Sketcher.Constraint("Horizontal", 2, 2, 16, 2),
    Sketcher.Constraint("Horizontal", 1, 2, 17, 2),
    Sketcher.Constraint("Horizontal", 0, 2, 18, 2),
    Sketcher.Constraint("Horizontal", 23, 2, 24, 2),
    Sketcher.Constraint("Horizontal", 25, 2, 26, 2),
    Sketcher.Constraint("Horizontal", 27, 2, 28, 2),
    Sketcher.Constraint("Horizontal", 29, 2, 30, 2),
    Sketcher.Constraint("Horizontal", 31, 2, 32, 2),
    Sketcher.Constraint("Horizontal", 33, 2, 34, 2),
    Sketcher.Constraint("Horizontal", 35, 2, 36, 2),
    Sketcher.Constraint("Horizontal", 37, 2, 38, 2),
    Sketcher.Constraint("Horizontal", 53, 2, 54, 2),
    Sketcher.Constraint("Horizontal", 55, 2, 56, 2),
    Sketcher.Constraint("Horizontal", 57, 2, 58, 2),
    Sketcher.Constraint("Horizontal", 59, 2, 60, 2),
    Sketcher.Constraint("Horizontal", 61, 2, 62, 2),
    Sketcher.Constraint("Horizontal", 63, 2, 64, 2),
    Sketcher.Constraint("Horizontal", 65, 2, 66, 2),
    Sketcher.Constraint("Horizontal", 67, 2, 68, 2),
    Sketcher.Constraint("Horizontal", 51, 2, 72, 1),
    Sketcher.Constraint("Horizontal", 49, 2, 74, 1),
    Sketcher.Constraint("Horizontal", 47, 2, 76, 1),
    Sketcher.Constraint("Vertical", 3, 2, 4, 2),
    Sketcher.Constraint("Vertical", 2, 2, 5, 2),
    Sketcher.Constraint("Vertical", 1, 2, 6, 2),
    Sketcher.Constraint("Vertical", 0, 2, 7, 2),
    Sketcher.Constraint("Vertical", 8, 2, 21, 2),
    Sketcher.Constraint("Equal", 25, 27),
    Sketcher.Constraint("Equal", 27, 29),
    Sketcher.Constraint("Equal", 29, 31),
    Sketcher.Constraint("Equal", 31, 33),
    Sketcher.Constraint("Equal", 33, 35),
    Sketcher.Constraint("Equal", 35, 37),
    Sketcher.Constraint("Equal", 37, 39),
    Sketcher.Constraint("Equal", 23, 41),
    Sketcher.Constraint("Radius", 0, Q("2.031 in")),
    Sketcher.Constraint("Radius", 22, Q("1.875 in")),
    Sketcher.Constraint("DistanceX", 77, 3, -1, 1, Q("1.875 in")),
    Sketcher.Constraint("Radius", 24, 8.372023),
    Sketcher.Constraint("DistanceX", -1, 1, 40, 3, 253.926899),
    Sketcher.Constraint("DistanceX", 10, 2, 10, 1, 268.643833),
    Sketcher.Constraint("DistanceX", 23, 1, 23, 2, 6.675945),
    Sketcher.Constraint("DistanceX", -1, 1, 2, 2, 314.416072),
    Sketcher.Constraint("DistanceX", -1, 1, 3, 2, 319.660208),
    Sketcher.Constraint("DistanceX", 12, 2, -1, 1, 36.77399),
    Sketcher.Constraint("DistanceY", -1, 1, 44, 1, 34.307639),
    Sketcher.Constraint("DistanceX", -1, 1, 45, 2, 311.47985),
    Sketcher.Constraint("DistanceX", -1, 1, 0, 2, 291.688496),
    Sketcher.Constraint("DistanceX", -1, 1, 8, 2, 277.129024),
])
sketch1.setExpression("Constraints[231]", "Params.sketch1_radius")
sketch1.setExpression("Constraints[232]", "Params.sketch1_radius2")
pad1 = body.newObject("PartDesign::Pad", "Pad")
pad1.Profile = sketch1
pad1.setExpression("Length", "Params.pad1_length")

doc.recompute()
